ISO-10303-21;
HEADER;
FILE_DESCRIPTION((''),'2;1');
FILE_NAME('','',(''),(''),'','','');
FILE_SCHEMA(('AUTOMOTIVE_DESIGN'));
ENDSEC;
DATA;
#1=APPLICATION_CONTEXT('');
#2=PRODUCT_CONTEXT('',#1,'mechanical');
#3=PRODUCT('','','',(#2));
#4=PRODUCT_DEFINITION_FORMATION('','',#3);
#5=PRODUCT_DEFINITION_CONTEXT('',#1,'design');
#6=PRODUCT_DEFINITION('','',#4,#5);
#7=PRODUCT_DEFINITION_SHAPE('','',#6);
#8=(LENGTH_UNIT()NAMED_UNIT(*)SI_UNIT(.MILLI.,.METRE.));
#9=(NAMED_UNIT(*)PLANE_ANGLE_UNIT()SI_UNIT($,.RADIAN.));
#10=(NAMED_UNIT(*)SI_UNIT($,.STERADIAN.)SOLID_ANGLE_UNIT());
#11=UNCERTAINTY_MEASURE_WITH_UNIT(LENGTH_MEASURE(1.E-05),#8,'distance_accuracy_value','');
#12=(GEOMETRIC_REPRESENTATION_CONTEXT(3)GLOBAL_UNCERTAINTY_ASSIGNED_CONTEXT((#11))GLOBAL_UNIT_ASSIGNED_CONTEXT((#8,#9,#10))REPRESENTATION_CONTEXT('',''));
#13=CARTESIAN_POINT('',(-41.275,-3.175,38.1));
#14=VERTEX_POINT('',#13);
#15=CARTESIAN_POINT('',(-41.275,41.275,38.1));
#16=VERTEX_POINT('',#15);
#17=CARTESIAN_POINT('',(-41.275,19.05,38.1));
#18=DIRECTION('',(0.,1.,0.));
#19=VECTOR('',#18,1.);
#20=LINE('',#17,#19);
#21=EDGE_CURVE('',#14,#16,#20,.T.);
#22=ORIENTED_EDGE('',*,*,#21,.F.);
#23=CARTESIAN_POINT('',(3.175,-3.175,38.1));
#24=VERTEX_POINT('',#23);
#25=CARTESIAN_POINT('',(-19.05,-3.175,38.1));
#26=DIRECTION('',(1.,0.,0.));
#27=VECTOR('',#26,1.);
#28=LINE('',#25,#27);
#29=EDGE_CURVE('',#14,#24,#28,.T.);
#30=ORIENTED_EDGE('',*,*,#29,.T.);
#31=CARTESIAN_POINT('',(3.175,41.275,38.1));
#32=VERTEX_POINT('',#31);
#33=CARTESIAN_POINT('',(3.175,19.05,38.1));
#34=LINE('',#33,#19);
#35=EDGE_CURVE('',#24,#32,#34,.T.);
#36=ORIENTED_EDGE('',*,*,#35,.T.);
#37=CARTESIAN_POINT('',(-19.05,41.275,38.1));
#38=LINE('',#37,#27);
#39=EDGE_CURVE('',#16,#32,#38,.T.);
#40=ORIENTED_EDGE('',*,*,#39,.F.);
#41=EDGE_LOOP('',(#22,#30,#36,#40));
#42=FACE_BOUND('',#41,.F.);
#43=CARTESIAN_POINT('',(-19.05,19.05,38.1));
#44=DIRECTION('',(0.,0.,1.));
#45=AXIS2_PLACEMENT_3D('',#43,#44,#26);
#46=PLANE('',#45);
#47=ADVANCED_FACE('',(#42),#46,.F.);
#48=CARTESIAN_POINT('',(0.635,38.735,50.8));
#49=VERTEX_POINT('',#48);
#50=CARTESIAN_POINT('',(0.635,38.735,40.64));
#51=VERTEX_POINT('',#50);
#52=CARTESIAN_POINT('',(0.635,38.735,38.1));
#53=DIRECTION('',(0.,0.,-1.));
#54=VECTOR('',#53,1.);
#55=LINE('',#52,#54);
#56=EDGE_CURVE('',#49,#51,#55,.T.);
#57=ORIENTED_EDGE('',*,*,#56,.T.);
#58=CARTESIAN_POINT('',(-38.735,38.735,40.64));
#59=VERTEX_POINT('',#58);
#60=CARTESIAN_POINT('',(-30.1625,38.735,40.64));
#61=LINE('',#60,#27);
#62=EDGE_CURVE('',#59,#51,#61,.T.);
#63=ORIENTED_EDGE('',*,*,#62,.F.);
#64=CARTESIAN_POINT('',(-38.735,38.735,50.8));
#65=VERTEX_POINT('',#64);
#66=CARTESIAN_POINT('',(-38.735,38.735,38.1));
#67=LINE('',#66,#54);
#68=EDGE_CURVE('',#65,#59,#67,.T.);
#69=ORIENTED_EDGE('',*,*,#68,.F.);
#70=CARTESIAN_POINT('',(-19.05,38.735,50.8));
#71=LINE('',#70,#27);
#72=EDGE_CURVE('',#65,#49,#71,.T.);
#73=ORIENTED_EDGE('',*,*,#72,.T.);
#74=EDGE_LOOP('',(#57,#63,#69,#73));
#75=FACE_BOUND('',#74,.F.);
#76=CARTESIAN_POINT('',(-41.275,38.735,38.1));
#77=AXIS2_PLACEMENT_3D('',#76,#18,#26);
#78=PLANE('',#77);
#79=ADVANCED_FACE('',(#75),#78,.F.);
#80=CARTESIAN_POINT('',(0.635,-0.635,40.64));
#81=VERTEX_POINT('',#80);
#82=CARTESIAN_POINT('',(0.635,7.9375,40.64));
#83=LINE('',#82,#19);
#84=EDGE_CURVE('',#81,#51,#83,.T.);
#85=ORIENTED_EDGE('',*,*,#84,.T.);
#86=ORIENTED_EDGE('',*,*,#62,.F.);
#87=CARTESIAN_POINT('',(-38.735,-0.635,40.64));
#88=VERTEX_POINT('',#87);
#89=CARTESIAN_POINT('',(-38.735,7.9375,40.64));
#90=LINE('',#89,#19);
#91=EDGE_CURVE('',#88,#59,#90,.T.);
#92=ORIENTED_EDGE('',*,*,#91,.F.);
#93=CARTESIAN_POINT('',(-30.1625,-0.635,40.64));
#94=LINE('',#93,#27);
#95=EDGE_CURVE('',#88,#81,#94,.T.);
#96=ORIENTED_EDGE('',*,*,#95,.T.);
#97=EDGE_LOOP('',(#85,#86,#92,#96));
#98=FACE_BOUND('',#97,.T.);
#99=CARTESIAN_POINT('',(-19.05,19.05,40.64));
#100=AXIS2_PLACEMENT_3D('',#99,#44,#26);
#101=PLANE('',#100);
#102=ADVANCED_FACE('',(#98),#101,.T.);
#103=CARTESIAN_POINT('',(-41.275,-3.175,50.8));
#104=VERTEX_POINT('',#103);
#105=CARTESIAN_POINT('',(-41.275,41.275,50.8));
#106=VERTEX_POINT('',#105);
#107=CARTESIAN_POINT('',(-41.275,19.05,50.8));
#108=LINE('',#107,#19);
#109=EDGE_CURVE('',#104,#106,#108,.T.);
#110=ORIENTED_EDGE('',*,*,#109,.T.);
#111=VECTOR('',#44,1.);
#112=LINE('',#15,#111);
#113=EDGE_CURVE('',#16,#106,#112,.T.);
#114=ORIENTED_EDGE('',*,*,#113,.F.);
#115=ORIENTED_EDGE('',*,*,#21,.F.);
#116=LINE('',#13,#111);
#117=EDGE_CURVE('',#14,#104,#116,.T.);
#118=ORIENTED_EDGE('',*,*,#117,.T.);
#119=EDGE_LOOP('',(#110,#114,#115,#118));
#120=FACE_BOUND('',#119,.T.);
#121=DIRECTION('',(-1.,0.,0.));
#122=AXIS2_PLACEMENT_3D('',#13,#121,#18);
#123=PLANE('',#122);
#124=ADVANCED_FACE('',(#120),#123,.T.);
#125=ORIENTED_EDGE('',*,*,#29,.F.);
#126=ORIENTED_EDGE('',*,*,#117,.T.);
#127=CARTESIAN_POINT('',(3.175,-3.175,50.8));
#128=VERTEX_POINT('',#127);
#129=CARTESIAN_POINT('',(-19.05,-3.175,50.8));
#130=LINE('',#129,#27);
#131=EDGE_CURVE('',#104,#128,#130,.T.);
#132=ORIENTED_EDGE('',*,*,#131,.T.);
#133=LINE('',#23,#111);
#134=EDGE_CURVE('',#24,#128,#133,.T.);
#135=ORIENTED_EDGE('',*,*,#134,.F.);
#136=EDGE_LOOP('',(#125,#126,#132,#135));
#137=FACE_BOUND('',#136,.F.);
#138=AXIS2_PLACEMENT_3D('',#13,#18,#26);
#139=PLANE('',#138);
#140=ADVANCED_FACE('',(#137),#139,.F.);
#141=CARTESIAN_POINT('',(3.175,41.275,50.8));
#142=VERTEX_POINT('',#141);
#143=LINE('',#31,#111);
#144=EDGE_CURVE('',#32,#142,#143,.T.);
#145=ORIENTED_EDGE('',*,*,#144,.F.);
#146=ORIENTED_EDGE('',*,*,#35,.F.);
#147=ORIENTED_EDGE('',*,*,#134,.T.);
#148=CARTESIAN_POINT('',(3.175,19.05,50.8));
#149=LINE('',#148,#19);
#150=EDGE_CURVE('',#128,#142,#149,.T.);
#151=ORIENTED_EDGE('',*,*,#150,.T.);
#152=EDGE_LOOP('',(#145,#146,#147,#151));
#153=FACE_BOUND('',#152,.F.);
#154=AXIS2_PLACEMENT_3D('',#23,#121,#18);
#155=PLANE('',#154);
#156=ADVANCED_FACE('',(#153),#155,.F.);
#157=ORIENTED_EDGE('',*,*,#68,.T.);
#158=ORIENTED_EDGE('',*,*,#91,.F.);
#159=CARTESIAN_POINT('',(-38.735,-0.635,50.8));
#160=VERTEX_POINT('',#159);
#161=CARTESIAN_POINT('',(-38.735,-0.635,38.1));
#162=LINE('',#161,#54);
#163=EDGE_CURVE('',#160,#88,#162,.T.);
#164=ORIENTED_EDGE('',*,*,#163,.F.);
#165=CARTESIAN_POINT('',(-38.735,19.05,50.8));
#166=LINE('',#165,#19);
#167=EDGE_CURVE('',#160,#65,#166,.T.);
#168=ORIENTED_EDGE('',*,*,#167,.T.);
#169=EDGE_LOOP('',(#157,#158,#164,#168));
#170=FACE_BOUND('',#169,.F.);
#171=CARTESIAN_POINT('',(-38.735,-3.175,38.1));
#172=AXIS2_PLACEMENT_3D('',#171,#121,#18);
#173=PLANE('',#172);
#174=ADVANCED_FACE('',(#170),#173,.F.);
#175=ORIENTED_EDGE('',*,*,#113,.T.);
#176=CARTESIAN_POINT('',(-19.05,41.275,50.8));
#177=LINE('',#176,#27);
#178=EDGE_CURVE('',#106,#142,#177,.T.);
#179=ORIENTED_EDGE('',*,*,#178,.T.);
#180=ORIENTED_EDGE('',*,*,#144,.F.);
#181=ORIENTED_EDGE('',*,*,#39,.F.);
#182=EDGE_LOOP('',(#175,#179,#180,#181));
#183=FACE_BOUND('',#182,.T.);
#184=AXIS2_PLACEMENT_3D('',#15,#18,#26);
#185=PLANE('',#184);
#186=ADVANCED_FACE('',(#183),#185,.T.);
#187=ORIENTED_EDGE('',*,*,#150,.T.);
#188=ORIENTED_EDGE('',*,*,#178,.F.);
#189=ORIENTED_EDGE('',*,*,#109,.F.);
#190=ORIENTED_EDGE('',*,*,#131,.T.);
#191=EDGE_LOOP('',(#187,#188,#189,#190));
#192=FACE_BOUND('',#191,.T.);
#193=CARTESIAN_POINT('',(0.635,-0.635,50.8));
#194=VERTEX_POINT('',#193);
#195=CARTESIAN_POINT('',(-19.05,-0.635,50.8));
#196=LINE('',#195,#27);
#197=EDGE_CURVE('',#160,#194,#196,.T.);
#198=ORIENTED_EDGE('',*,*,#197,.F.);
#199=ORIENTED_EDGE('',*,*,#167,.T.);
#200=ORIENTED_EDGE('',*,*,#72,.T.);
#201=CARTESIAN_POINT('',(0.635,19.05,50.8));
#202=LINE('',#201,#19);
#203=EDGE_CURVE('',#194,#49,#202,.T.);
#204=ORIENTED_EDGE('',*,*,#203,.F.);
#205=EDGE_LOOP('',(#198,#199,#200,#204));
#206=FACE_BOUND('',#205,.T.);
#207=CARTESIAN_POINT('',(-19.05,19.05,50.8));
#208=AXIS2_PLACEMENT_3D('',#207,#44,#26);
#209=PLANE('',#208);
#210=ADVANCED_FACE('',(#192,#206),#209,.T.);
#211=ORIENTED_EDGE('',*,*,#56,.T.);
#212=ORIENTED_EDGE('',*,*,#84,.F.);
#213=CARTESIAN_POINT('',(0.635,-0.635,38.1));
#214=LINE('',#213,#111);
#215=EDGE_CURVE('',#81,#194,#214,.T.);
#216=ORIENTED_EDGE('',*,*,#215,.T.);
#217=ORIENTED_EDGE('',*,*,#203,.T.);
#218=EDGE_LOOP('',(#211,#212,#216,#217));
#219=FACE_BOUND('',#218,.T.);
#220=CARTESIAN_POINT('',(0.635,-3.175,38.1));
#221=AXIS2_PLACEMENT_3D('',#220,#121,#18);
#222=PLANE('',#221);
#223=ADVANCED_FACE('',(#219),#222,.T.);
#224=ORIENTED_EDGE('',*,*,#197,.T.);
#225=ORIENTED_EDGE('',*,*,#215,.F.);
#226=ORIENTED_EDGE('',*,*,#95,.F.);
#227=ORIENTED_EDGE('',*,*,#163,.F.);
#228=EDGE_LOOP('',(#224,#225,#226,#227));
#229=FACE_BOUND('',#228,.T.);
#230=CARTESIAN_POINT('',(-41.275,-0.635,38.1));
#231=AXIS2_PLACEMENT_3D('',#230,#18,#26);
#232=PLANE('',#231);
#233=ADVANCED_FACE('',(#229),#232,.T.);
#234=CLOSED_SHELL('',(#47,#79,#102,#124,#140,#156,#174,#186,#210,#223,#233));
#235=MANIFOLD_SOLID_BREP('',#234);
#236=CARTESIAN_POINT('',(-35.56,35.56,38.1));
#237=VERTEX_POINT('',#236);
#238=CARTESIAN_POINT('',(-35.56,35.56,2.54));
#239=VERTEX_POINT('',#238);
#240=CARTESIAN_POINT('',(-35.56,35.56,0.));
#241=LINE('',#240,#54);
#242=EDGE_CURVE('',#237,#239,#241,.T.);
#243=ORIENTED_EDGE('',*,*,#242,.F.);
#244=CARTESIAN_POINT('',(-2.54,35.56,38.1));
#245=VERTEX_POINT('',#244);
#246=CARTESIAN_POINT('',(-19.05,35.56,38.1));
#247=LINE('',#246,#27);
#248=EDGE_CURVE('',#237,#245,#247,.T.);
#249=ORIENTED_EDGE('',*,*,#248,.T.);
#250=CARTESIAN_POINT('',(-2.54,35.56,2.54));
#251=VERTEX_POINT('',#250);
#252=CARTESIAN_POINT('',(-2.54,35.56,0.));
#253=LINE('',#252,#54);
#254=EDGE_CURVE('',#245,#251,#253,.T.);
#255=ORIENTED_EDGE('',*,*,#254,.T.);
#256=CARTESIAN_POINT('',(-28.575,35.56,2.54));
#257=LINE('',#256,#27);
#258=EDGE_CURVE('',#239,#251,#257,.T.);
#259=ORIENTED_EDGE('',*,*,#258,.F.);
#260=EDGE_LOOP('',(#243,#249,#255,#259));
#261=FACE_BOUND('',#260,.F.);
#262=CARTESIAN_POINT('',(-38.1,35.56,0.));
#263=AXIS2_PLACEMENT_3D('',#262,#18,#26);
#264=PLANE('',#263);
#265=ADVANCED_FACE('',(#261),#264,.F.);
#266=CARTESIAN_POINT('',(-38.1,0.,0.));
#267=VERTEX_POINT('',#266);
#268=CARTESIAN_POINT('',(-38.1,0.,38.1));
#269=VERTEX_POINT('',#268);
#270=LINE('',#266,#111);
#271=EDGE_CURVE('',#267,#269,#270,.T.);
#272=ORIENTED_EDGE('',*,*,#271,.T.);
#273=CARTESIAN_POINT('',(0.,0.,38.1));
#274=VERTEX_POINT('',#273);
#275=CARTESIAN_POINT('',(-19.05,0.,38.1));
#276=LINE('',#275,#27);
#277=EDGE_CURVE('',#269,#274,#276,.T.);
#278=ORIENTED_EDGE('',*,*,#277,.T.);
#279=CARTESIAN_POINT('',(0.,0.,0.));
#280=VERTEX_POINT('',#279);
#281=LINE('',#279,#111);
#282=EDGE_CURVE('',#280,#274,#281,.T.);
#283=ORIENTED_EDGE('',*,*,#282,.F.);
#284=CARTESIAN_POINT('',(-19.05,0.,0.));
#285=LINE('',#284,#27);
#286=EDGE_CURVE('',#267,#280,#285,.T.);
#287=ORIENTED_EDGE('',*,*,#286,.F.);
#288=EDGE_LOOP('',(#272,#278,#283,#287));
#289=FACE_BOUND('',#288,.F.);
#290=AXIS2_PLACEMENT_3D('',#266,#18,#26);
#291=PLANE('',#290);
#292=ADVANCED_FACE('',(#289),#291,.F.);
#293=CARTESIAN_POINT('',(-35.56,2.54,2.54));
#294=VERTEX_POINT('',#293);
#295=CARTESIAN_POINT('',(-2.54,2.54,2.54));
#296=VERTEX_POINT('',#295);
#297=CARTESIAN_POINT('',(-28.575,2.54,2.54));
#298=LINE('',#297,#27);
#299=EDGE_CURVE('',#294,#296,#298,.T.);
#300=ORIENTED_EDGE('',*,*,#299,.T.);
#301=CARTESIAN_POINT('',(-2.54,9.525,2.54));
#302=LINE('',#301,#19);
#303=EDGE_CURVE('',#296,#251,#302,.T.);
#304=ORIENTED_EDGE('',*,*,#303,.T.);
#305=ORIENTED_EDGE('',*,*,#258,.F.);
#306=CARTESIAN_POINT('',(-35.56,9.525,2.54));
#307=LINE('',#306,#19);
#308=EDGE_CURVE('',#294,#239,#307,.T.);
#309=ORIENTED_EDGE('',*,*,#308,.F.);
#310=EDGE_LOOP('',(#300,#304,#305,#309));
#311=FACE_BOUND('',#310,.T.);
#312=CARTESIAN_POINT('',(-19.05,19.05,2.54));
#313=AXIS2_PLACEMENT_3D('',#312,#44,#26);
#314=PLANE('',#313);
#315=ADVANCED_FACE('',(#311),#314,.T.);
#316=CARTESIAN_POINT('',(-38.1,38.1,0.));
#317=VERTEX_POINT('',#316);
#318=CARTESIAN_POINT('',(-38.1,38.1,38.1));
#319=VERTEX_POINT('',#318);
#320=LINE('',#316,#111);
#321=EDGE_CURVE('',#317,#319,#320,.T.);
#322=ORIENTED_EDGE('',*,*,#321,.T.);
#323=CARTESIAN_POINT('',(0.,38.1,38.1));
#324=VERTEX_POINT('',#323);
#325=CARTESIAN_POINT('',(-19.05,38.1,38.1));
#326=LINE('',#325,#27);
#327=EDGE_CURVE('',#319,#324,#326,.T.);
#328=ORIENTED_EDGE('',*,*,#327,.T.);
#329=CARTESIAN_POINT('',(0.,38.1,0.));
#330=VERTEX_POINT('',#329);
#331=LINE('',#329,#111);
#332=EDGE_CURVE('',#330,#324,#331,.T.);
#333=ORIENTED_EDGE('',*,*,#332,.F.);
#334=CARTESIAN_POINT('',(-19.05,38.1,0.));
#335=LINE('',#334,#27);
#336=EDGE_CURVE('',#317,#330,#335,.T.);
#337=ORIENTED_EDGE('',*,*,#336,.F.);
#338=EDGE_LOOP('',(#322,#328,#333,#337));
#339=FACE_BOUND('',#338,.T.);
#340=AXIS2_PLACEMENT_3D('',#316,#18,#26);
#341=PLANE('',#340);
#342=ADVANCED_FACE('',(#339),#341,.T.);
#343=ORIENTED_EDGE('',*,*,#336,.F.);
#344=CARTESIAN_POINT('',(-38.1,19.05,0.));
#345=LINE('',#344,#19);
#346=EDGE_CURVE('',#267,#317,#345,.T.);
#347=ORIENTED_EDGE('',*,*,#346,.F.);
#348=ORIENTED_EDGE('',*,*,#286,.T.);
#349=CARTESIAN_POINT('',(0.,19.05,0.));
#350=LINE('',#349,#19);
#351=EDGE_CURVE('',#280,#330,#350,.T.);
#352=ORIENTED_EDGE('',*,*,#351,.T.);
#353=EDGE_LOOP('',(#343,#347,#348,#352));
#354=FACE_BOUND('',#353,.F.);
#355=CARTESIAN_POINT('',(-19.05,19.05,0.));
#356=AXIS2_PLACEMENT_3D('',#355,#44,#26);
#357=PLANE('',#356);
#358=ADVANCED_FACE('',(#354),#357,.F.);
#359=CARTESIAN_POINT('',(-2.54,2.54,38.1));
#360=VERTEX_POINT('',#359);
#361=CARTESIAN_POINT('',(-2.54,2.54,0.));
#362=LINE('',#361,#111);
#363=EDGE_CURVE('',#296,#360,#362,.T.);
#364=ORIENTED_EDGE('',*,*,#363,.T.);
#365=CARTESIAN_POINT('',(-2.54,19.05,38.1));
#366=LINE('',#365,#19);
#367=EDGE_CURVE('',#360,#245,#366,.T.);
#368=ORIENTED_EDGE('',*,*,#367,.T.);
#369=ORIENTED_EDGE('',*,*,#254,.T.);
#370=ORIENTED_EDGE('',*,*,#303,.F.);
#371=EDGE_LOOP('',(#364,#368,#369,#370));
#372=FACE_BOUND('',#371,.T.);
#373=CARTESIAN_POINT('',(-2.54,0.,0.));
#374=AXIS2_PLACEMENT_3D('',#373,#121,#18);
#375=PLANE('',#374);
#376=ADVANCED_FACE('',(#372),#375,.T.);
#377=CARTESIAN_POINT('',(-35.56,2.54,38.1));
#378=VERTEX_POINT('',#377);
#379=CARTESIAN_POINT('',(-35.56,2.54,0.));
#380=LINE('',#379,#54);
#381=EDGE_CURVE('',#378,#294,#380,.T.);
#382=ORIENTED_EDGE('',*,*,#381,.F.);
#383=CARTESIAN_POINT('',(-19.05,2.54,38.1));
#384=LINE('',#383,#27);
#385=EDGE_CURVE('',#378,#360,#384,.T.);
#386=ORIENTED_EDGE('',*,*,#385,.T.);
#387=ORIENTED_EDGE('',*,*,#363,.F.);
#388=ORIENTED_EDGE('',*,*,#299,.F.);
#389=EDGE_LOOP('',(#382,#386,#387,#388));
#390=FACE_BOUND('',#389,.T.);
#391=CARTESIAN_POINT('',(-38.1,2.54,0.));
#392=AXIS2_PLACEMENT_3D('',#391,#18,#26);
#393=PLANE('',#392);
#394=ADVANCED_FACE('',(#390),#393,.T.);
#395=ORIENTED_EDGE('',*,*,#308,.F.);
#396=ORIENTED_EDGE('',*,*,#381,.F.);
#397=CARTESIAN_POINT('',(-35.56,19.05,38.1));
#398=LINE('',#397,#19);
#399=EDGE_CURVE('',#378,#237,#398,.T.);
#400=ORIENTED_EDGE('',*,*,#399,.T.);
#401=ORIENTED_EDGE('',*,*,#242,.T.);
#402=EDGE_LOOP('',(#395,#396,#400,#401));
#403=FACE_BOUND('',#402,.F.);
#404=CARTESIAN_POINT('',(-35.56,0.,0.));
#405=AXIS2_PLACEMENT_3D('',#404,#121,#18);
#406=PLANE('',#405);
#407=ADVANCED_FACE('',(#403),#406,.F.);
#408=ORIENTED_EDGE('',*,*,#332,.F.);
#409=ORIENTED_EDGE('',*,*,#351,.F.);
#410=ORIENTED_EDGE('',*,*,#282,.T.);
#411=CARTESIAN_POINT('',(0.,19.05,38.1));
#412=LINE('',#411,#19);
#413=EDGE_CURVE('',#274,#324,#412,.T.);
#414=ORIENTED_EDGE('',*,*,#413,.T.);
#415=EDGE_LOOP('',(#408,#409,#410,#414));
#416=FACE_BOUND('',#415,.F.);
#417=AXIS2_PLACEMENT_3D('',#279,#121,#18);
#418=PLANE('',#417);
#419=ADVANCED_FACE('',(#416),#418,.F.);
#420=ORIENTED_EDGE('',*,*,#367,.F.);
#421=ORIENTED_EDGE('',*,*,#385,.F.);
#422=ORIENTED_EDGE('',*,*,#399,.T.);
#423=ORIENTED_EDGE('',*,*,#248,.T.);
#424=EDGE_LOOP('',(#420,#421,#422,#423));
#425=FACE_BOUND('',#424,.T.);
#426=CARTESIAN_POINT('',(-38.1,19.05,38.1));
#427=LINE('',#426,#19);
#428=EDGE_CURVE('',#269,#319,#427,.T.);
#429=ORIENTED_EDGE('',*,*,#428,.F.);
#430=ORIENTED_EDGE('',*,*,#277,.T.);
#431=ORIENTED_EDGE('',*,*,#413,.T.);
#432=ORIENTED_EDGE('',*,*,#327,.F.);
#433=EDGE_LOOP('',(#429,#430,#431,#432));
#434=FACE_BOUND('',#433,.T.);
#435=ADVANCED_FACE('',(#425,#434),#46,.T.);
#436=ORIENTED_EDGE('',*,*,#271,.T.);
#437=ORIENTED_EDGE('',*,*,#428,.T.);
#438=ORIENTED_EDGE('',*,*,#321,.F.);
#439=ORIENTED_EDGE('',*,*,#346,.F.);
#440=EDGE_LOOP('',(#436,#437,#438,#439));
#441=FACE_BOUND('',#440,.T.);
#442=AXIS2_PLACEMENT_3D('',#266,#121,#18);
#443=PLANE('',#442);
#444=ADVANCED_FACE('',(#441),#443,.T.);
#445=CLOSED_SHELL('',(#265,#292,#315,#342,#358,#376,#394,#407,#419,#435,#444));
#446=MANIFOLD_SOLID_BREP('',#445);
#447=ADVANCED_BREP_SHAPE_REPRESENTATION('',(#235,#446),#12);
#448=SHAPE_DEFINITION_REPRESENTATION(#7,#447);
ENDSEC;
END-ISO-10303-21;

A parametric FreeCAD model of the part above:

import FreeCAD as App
import Part
import Sketcher

V = App.Vector
Q = App.Units.Quantity


def faces_at(feature, points):
    """Names of the faces that lie closest to the given points."""
    faces = feature.Shape.Faces
    near = lambda p: min(range(len(faces)), key=lambda i: faces[i].distToShape(Part.Vertex(*p))[0])
    return sorted({f"Face{near(p) + 1}" for p in points})

doc = App.newDocument("Part")
body = doc.addObject("PartDesign::Body", "Body")

# Sketch on XY plane
sketch1 = doc.addObject("Sketcher::SketchObject", "Sketch")
body.addObject(sketch1)
sketch1.AttachmentSupport = (doc.XY_Plane, [""])
sketch1.MapMode = "FlatFace"
sketch1.addGeometry([
    Part.LineSegment(V(-38, 38, 0), V(-38, 0, 0)),
    Part.LineSegment(V(-38, 0, 0), V(0, 0, 0)),
    Part.LineSegment(V(0, 0, 0), V(0, 38, 0)),
    Part.LineSegment(V(0, 38, 0), V(-38, 38, 0)),
], False)
sketch1.addConstraint([
    Sketcher.Constraint("Coincident", 0, 2, 1, 1),
    Sketcher.Constraint("Coincident", 1, 2, 2, 1),
    Sketcher.Constraint("Coincident", 2, 2, 3, 1),
    Sketcher.Constraint("Coincident", 3, 2, 0, 1),
    Sketcher.Constraint("Vertical", 0),
    Sketcher.Constraint("Horizontal", 1),
    Sketcher.Constraint("Vertical", 2),
    Sketcher.Constraint("Horizontal", 3),
    Sketcher.Constraint("Coincident", 1, 2, -1, 1),
    Sketcher.Constraint("Equal", 3, 0),
    Sketcher.Constraint("DistanceX", 1, 1, 1, 2, Q("1.5 in")),
])
pad1 = doc.addObject("PartDesign::Pad", "Pad")
body.addObject(pad1)
pad1.Profile = sketch1
pad1.Length = Q("1.5 in")
doc.recompute()

thickness = doc.addObject("PartDesign::Thickness", "Thickness")
body.addObject(thickness)
thickness.Base = (pad1, faces_at(pad1, [(-19.05, 19.05, 38.1)]))
thickness.Value = Q("0.1 in")
thickness.Reversed = True
thickness.Join = "Arc"
body2 = doc.addObject("PartDesign::Body", "Body001")

# Sketch on XY plane
sketch2 = doc.addObject("Sketcher::SketchObject", "Sketch001")
body2.addObject(sketch2)
sketch2.AttachmentSupport = (doc.getObject("XY_Plane001"), [""])
sketch2.MapMode = "FlatFace"
sketch2.AttachmentOffset = App.Placement(V(0, 0, 1.5 * 25.4), App.Rotation())
sketch2.addGeometry([
    Part.LineSegment(V(-41, 41, 0), V(-41, -3, 0)),
    Part.LineSegment(V(-41, -3, 0), V(3, -3, 0)),
    Part.LineSegment(V(3, -3, 0), V(3, 41, 0)),
    Part.LineSegment(V(3, 41, 0), V(-41, 41, 0)),
], False)
sketch2.addConstraint([
    Sketcher.Constraint("Coincident", 0, 2, 1, 1),
    Sketcher.Constraint("Coincident", 1, 2, 2, 1),
    Sketcher.Constraint("Coincident", 2, 2, 3, 1),
    Sketcher.Constraint("Coincident", 3, 2, 0, 1),
    Sketcher.Constraint("Vertical", 0),
    Sketcher.Constraint("Horizontal", 1),
    Sketcher.Constraint("Vertical", 2),
    Sketcher.Constraint("Horizontal", 3),
    Sketcher.Constraint("Equal", 3, 0),
    Sketcher.Constraint("DistanceX", 1, 1, 1, 2, Q("1.75 in")),
    Sketcher.Constraint("DistanceX", 0, 2, -1, 1, Q("1.625 in")),
    Sketcher.Constraint("DistanceY", 0, 2, -1, 1, Q("0.125 in")),
])
pad2 = doc.addObject("PartDesign::Pad", "Pad001")
body2.addObject(pad2)
pad2.Profile = sketch2
pad2.Length = Q("0.5 in")
doc.recompute()

thickness2 = doc.addObject("PartDesign::Thickness", "Thickness001")
body2.addObject(thickness2)
thickness2.Base = (pad2, faces_at(pad2, [(-19.05, 19.05, 50.8)]))
thickness2.Value = Q("0.1 in")
thickness2.Reversed = True
thickness2.Join = "Arc"

doc.recompute()
